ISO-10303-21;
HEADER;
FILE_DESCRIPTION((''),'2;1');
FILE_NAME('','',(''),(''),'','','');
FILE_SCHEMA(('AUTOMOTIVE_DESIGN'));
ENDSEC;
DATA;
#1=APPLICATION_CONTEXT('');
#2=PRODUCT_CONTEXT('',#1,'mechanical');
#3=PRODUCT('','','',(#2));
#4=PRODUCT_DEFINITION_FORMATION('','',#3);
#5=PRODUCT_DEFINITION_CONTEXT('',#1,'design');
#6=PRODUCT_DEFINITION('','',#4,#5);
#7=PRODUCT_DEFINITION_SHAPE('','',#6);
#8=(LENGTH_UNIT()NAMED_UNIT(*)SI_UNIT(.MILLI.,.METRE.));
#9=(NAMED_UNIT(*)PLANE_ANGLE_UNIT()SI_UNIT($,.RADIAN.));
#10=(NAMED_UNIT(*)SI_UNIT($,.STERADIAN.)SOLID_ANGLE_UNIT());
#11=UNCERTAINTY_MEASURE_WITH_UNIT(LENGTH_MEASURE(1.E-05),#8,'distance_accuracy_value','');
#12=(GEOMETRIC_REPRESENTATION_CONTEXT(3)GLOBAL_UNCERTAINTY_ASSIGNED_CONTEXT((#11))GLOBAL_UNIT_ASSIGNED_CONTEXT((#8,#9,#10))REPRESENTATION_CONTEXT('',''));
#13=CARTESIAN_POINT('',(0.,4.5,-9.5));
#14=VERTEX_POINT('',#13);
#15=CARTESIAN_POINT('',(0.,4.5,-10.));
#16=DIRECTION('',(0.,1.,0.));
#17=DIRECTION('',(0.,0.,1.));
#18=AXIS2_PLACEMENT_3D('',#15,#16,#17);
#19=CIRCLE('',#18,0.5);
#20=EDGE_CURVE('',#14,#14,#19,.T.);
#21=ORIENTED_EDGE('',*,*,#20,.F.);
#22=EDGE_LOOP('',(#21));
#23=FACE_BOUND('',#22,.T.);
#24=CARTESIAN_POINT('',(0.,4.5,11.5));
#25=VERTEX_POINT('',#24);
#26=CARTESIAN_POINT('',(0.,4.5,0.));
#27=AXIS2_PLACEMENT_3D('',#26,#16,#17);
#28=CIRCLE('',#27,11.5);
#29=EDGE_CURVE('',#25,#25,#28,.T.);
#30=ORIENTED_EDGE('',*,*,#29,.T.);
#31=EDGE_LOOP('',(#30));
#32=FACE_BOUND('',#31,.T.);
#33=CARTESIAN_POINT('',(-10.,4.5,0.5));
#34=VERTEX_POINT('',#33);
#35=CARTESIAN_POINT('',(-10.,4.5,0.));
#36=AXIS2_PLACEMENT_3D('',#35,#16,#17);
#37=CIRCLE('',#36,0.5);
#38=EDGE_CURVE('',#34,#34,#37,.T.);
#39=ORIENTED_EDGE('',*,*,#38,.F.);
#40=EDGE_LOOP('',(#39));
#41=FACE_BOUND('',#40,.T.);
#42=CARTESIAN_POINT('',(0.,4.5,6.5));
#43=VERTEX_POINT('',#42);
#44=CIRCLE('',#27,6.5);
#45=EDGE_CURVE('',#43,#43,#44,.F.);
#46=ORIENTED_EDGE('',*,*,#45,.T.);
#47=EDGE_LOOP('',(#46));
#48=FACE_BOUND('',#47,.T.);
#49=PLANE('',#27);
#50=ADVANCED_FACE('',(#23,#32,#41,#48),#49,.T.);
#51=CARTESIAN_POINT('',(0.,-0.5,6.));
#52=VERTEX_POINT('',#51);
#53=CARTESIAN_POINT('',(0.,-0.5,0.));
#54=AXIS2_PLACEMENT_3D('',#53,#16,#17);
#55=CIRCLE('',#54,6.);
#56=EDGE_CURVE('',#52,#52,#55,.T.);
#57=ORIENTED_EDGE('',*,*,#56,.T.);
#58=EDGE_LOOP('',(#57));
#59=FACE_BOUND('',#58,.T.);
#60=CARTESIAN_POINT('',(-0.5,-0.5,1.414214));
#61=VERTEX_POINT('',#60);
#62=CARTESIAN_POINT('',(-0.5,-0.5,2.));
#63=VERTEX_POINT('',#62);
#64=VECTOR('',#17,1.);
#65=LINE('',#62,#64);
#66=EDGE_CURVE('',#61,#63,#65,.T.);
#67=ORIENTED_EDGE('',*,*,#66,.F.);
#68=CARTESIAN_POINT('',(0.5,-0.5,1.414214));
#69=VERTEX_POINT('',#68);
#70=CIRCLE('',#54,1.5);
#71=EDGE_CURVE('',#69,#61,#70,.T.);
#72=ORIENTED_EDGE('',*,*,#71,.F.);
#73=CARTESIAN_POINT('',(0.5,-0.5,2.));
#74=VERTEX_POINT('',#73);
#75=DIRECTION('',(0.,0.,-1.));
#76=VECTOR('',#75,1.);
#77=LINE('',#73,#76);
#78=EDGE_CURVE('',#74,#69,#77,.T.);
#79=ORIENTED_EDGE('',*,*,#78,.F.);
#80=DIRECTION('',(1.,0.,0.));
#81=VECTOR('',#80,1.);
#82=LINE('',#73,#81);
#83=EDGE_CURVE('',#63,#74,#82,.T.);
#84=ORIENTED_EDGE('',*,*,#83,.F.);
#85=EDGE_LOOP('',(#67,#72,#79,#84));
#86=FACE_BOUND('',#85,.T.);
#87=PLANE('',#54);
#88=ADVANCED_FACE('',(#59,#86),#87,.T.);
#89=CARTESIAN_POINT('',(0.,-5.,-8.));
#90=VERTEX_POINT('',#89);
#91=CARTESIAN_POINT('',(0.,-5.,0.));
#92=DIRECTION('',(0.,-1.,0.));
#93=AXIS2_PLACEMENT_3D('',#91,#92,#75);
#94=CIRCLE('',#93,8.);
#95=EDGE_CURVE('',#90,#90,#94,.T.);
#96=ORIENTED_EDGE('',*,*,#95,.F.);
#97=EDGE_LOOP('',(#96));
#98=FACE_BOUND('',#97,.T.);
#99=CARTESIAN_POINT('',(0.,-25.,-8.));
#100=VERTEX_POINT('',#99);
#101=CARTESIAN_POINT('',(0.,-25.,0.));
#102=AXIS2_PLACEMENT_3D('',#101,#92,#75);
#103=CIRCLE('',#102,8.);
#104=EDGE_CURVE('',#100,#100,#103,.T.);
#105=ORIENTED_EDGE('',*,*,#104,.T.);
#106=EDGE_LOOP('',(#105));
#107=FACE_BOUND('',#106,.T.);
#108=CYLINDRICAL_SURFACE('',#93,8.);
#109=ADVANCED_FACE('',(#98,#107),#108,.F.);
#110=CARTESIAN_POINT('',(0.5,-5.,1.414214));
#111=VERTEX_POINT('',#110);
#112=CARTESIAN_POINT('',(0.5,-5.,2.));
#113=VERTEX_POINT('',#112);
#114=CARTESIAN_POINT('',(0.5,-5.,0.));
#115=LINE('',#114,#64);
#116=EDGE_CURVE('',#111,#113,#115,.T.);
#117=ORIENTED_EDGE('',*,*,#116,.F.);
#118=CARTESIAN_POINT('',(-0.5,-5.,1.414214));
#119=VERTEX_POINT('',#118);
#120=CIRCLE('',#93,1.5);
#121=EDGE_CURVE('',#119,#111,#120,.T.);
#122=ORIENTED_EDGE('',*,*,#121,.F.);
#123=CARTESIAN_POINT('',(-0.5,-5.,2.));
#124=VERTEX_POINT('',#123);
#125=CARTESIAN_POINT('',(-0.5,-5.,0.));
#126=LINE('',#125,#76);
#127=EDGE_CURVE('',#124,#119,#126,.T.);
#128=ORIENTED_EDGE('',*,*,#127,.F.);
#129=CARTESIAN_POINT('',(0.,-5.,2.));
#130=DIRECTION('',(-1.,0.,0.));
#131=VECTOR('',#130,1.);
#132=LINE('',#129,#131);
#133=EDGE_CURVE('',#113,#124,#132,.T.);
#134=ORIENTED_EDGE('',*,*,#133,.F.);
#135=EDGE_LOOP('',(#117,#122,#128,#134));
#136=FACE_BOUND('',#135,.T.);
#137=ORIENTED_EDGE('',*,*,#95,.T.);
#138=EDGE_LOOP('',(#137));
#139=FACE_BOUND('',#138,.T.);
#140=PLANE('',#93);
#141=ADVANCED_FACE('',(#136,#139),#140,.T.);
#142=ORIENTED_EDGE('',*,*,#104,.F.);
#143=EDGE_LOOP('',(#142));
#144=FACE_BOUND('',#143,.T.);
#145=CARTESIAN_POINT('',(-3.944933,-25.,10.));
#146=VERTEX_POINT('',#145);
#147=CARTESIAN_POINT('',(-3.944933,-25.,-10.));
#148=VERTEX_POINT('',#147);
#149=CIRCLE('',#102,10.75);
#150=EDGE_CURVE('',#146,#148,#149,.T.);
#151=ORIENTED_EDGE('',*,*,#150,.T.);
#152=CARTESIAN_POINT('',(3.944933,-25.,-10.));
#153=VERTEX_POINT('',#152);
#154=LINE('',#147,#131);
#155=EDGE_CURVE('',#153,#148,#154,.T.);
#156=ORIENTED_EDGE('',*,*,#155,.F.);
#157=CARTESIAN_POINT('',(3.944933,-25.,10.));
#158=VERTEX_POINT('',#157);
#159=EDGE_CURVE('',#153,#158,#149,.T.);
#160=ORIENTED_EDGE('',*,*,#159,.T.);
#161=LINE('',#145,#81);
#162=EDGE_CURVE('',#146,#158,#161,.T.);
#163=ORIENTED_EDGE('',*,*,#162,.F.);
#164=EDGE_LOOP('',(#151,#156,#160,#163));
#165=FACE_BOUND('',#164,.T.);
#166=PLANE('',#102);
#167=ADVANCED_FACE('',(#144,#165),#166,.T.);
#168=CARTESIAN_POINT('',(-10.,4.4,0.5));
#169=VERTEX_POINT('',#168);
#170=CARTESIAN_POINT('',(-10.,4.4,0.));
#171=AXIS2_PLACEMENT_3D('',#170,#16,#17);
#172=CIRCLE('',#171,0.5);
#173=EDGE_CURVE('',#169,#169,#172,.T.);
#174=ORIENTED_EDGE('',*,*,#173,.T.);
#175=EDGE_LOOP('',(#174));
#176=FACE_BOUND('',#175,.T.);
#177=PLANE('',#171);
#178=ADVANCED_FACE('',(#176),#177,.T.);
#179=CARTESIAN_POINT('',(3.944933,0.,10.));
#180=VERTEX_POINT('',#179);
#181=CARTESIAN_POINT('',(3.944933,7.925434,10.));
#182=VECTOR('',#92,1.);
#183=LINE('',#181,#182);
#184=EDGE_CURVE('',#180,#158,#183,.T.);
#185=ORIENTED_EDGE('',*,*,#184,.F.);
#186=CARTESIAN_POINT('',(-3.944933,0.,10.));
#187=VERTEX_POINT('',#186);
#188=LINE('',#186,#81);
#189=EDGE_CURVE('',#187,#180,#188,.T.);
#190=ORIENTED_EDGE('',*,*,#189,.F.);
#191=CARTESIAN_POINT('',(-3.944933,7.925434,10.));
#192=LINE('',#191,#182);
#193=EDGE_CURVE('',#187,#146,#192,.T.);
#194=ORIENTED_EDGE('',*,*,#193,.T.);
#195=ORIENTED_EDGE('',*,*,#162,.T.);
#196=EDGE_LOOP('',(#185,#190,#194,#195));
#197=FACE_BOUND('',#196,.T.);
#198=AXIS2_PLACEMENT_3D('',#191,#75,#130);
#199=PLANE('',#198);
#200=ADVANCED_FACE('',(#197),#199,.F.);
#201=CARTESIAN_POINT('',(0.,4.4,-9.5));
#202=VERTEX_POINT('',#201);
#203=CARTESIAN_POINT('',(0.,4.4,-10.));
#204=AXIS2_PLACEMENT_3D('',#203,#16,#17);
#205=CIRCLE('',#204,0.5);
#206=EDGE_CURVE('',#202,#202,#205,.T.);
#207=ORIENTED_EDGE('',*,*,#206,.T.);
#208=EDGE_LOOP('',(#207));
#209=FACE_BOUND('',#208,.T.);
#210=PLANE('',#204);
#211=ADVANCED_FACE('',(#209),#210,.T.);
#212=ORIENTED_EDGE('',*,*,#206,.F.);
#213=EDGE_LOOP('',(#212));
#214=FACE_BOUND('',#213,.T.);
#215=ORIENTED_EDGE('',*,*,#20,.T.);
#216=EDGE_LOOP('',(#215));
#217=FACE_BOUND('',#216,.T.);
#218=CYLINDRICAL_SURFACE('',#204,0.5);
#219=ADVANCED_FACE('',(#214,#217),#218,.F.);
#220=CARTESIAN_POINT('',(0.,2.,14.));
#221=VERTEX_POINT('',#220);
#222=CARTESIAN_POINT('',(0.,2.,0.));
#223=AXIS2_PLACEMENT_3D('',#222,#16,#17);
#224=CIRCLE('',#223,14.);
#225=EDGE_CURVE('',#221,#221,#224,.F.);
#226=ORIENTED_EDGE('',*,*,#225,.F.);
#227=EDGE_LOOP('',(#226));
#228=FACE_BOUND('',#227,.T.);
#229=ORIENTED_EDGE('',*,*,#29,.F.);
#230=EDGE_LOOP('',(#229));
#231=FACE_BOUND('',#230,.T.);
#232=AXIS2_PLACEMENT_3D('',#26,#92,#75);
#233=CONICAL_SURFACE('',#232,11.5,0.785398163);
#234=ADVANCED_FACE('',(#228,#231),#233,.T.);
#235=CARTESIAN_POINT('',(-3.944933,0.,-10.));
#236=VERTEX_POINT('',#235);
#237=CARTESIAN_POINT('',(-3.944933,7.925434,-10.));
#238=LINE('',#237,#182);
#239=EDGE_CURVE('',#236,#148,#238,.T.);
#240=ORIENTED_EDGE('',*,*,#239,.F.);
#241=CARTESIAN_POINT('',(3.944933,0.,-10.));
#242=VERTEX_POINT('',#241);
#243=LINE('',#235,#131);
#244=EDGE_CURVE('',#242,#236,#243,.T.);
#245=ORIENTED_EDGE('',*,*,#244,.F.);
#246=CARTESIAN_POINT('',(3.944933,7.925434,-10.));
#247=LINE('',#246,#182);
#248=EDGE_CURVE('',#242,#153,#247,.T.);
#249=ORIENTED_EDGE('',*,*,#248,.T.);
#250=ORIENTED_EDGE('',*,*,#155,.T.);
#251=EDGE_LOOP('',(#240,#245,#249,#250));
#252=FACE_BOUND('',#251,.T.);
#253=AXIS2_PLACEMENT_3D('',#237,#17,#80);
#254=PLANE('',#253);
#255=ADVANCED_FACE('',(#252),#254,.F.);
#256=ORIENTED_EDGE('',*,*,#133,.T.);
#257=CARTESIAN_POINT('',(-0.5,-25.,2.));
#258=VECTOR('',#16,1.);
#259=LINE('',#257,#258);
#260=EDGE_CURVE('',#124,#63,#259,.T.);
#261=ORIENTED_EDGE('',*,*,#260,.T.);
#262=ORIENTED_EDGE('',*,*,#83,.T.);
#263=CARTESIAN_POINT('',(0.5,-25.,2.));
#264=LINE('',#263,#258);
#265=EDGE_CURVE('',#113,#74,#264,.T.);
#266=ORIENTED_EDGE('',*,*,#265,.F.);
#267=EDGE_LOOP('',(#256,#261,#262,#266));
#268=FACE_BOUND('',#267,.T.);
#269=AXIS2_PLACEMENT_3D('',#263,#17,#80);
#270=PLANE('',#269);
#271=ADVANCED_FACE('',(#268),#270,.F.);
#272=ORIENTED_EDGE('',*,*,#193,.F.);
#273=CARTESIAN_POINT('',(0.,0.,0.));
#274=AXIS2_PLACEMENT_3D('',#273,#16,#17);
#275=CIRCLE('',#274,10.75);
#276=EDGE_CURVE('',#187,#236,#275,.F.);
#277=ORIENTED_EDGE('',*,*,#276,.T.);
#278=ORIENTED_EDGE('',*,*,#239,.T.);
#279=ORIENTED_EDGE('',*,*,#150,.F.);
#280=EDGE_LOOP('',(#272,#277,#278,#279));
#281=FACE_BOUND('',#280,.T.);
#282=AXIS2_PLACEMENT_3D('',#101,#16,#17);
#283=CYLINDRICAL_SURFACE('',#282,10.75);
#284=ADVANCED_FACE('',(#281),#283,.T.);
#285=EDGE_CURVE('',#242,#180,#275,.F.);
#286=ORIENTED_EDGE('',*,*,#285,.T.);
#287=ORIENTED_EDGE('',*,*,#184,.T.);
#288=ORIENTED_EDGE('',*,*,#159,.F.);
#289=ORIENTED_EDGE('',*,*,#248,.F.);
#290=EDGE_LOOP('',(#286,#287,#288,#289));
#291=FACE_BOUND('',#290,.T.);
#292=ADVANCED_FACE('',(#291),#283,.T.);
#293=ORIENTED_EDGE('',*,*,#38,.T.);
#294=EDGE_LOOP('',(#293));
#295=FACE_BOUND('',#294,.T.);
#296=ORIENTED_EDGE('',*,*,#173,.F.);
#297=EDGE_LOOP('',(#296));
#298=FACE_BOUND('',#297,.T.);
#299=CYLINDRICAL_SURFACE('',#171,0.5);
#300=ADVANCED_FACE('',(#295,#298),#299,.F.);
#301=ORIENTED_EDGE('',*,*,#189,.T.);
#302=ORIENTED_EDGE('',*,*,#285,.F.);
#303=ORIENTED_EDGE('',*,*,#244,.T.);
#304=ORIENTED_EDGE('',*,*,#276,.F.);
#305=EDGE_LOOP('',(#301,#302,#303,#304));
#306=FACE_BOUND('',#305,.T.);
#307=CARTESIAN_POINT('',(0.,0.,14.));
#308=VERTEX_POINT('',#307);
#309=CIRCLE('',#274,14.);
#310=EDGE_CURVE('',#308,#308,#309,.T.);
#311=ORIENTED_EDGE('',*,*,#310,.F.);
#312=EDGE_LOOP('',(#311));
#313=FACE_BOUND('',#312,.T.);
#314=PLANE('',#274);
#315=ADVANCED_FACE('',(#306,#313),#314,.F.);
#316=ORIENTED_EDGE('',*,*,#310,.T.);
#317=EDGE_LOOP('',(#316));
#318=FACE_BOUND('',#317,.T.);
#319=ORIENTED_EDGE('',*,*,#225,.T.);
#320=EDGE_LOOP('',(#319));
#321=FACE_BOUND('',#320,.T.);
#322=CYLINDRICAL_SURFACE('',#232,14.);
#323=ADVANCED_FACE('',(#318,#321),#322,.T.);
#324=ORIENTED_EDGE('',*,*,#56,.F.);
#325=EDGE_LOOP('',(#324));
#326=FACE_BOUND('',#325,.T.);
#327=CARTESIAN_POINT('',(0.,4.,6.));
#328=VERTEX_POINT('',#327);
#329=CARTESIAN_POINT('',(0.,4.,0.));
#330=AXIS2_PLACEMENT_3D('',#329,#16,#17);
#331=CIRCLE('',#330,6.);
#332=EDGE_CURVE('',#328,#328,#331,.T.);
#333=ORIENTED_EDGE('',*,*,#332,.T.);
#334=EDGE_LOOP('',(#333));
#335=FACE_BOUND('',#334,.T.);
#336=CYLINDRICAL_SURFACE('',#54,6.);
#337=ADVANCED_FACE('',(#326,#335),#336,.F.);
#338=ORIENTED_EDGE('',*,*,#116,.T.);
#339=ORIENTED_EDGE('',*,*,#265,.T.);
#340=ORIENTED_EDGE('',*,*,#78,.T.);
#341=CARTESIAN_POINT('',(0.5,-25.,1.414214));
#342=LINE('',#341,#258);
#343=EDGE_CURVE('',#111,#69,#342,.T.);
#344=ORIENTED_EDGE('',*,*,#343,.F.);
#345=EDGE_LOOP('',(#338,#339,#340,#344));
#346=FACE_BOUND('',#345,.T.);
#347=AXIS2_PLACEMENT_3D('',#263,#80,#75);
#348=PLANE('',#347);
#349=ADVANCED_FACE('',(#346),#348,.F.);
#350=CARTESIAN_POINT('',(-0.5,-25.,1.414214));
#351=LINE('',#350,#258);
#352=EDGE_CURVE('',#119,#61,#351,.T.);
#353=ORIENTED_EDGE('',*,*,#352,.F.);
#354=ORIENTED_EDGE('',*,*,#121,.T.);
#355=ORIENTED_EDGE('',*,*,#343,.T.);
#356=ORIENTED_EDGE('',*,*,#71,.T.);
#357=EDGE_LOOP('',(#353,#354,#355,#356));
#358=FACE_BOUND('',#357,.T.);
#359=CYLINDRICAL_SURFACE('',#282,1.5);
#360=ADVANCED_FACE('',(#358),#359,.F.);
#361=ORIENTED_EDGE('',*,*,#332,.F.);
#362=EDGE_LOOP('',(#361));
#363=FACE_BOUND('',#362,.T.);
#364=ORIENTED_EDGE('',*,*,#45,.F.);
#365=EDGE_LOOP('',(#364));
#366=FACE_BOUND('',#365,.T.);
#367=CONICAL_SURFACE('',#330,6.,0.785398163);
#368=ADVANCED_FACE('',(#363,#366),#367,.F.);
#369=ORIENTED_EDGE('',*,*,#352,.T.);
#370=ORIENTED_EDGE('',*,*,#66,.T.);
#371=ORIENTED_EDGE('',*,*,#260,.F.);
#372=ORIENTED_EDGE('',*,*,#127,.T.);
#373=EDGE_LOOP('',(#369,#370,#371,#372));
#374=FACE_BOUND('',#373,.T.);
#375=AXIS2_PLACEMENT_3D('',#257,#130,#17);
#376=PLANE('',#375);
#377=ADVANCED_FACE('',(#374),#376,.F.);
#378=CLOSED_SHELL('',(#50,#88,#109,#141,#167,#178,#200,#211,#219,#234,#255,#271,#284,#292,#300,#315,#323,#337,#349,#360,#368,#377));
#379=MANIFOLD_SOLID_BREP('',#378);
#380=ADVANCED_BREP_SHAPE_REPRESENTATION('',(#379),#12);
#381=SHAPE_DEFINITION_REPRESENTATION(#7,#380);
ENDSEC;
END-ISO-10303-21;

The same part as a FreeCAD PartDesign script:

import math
import FreeCAD as App
import Part
import Sketcher
from FreeCAD import Vector
Q = App.Units.Quantity


def edges_at(feature, points):
    """Names of the edges that pass closest to the given points."""
    edges = feature.Shape.Edges
    near = lambda p: min(range(len(edges)), key=lambda i: edges[i].distToShape(Part.Vertex(*p))[0])
    return sorted({f"Edge{near(p) + 1}" for p in points})

doc = App.newDocument("Part")
params = doc.addObject("Spreadsheet::Sheet", "Params")
for row, (alias, value) in enumerate([
    ("sketch1_diameter", "28 mm"),
    ("pad1_length", "4.5 mm"),
    ("sketch2_diameter", "1 mm"),
    ("pocket1_length", "0.1 mm"),
    ("chamfer_size", "2.5 mm"),
    ("sketch3_diameter", "21.5 mm"),
    ("pad2_length", "25 mm"),
    ("sketch4_radius", "10.75 mm"),
    ("pocket2_length", "25 mm"),
    ("sketch5_diameter", "12 mm"),
    ("pocket3_length", "5 mm"),
    ("chamfer2_size", "0.5 mm"),
    ("sketch6_diameter", "16 mm"),
    ("pocket4_length", "20 mm"),
    ("sketch7_radius", "1.5 mm"),
    ("sketch7_width", "1 mm"),
], start=1):
    params.set(f"A{row}", alias)
    params.set(f"B{row}", "=" + value)
    params.setAlias(f"B{row}", alias)

body = doc.addObject("PartDesign::Body", "Body")

# Sketch on XZ plane
sketch1 = body.newObject("Sketcher::SketchObject", "Sketch")
sketch1.AttachmentSupport = (doc.getObject("XZ_Plane"), [""])
sketch1.MapMode = "FlatFace"
sketch1.addGeometry(Part.Circle(Vector(0, 0, 0), Vector(0, 0, 1), 14), False)
sketch1.addConstraint(Sketcher.Constraint("Coincident", 0, 3, -1, 1))
sketch1.addConstraint(Sketcher.Constraint("Diameter", 0, Q("28 mm")))
sketch1.setExpression("Constraints[1]", "Params.sketch1_diameter")
pad1 = body.newObject("PartDesign::Pad", "Pad")
pad1.Profile = sketch1
pad1.setExpression("Length", "Params.pad1_length")
pad1.Reversed = True

# Sketch on XZ plane
sketch2 = body.newObject("Sketcher::SketchObject", "Sketch001")
sketch2.AttachmentSupport = (doc.getObject("XZ_Plane"), [""])
sketch2.MapMode = "FlatFace"
sketch2.AttachmentOffset = App.Placement(Vector(0, 0, -4.5), App.Rotation())
sketch2.addGeometry(Part.Circle(Vector(-10, 0, 0), Vector(0, 0, 1), 0.5), False)
sketch2.addGeometry(Part.Circle(Vector(0, -10, 0), Vector(0, 0, 1), 0.5), False)
sketch2.addConstraint(Sketcher.Constraint("Equal", 0, 1))
sketch2.addConstraint(Sketcher.Constraint("PointOnObject", 0, 3, -1))
sketch2.addConstraint(Sketcher.Constraint("PointOnObject", 1, 3, -2))
sketch2.addConstraint(Sketcher.Constraint("Diameter", 0, Q("1 mm")))
sketch2.addConstraint(Sketcher.Constraint("DistanceX", 0, 3, -1, 1, Q("10 mm")))
sketch2.addConstraint(Sketcher.Constraint("DistanceY", 1, 3, -1, 1, Q("10 mm")))
sketch2.setExpression("Constraints[3]", "Params.sketch2_diameter")
pocket1 = body.newObject("PartDesign::Pocket", "Pocket")
pocket1.Profile = sketch2
pocket1.setExpression("Length", "Params.pocket1_length")
pocket1.Reversed = True
doc.recompute()

chamfer = body.newObject("PartDesign::Chamfer", "Chamfer")
chamfer.Base = (pocket1, edges_at(pocket1, [(0, 4.5, -14)]))
chamfer.setExpression("Size", "Params.chamfer_size")

# Sketch on XZ plane
sketch3 = body.newObject("Sketcher::SketchObject", "Sketch002")
sketch3.AttachmentSupport = (doc.getObject("XZ_Plane"), [""])
sketch3.MapMode = "FlatFace"
sketch3.addGeometry(Part.Circle(Vector(0, 0, 0), Vector(0, 0, 1), 11), False)
sketch3.addConstraint(Sketcher.Constraint("Coincident", 0, 3, -1, 1))
sketch3.addConstraint(Sketcher.Constraint("Diameter", 0, Q("21.5 mm")))
sketch3.setExpression("Constraints[1]", "Params.sketch3_diameter")
pad2 = body.newObject("PartDesign::Pad", "Pad001")
pad2.Profile = sketch3
pad2.setExpression("Length", "Params.pad2_length")

# Sketch on XZ plane
sketch4 = body.newObject("Sketcher::SketchObject", "Sketch003")
sketch4.AttachmentSupport = (doc.getObject("XZ_Plane"), [""])
sketch4.MapMode = "FlatFace"
sketch4.addGeometry(Part.LineSegment(Vector(4, -10, 0), Vector(-4, -10, 0)), False)
sketch4.addGeometry(Part.ArcOfCircle(Part.Circle(Vector(0, 0, 0), Vector(0, 0, 1), 11), math.radians(-112), math.radians(-68)), False)
sketch4.addGeometry(Part.LineSegment(Vector(-4, 10, 0), Vector(4, 10, 0)), False)
sketch4.addGeometry(Part.ArcOfCircle(Part.Circle(Vector(0, 0, 0), Vector(0, 0, 1), 11), math.radians(68), math.radians(112)), False)
sketch4.addConstraint(Sketcher.Constraint("Coincident", 0, 1, 1, 2))
sketch4.addConstraint(Sketcher.Constraint("Coincident", 1, 1, 0, 2))
sketch4.addConstraint(Sketcher.Constraint("Coincident", 2, 1, 3, 2))
sketch4.addConstraint(Sketcher.Constraint("Coincident", 3, 1, 2, 2))
sketch4.addConstraint(Sketcher.Constraint("Horizontal", 0))
sketch4.addConstraint(Sketcher.Constraint("Horizontal", 2))
sketch4.addConstraint(Sketcher.Constraint("Coincident", 1, 3, -1, 1))
sketch4.addConstraint(Sketcher.Constraint("Coincident", 3, 3, -1, 1))
sketch4.addConstraint(Sketcher.Constraint("Equal", 1, 3))
sketch4.addConstraint(Sketcher.Constraint("Vertical", 1, 1, 2, 1))
sketch4.addConstraint(Sketcher.Constraint("Radius", 1, Q("10.75 mm")))
sketch4.addConstraint(Sketcher.Constraint("DistanceY", 0, 1, -1, 1, Q("10 mm")))
sketch4.setExpression("Constraints[10]", "Params.sketch4_radius")
pocket2 = body.newObject("PartDesign::Pocket", "Pocket001")
pocket2.Profile = sketch4
pocket2.setExpression("Length", "Params.pocket2_length")
pocket2.Reversed = True

# Sketch on XZ plane
sketch5 = body.newObject("Sketcher::SketchObject", "Sketch004")
sketch5.AttachmentSupport = (doc.getObject("XZ_Plane"), [""])
sketch5.MapMode = "FlatFace"
sketch5.AttachmentOffset = App.Placement(Vector(0, 0, -4.5), App.Rotation())
sketch5.addGeometry(Part.Circle(Vector(0, 0, 0), Vector(0, 0, 1), 6), False)
sketch5.addConstraint(Sketcher.Constraint("Coincident", 0, 3, -1, 1))
sketch5.addConstraint(Sketcher.Constraint("Diameter", 0, Q("12 mm")))
sketch5.setExpression("Constraints[1]", "Params.sketch5_diameter")
pocket3 = body.newObject("PartDesign::Pocket", "Pocket002")
pocket3.Profile = sketch5
pocket3.setExpression("Length", "Params.pocket3_length")
pocket3.Reversed = True
doc.recompute()

chamfer2 = body.newObject("PartDesign::Chamfer", "Chamfer001")
chamfer2.Base = (pocket3, edges_at(pocket3, [(0, 4.5, -6)]))
chamfer2.setExpression("Size", "Params.chamfer2_size")

# Sketch on XZ plane
sketch6 = body.newObject("Sketcher::SketchObject", "Sketch005")
sketch6.AttachmentSupport = (doc.getObject("XZ_Plane"), [""])
sketch6.MapMode = "FlatFace"
sketch6.AttachmentOffset = App.Placement(Vector(0, 0, 25), App.Rotation())
sketch6.addGeometry(Part.Circle(Vector(0, 0, 0), Vector(0, 0, 1), 8), False)
sketch6.addConstraint(Sketcher.Constraint("Coincident", 0, 3, -1, 1))
sketch6.addConstraint(Sketcher.Constraint("Diameter", 0, Q("16 mm")))
sketch6.setExpression("Constraints[1]", "Params.sketch6_diameter")
pocket4 = body.newObject("PartDesign::Pocket", "Pocket003")
pocket4.Profile = sketch6
pocket4.setExpression("Length", "Params.pocket4_length")

# Sketch on XZ plane
sketch7 = body.newObject("Sketcher::SketchObject", "Sketch006")
sketch7.AttachmentSupport = (doc.getObject("XZ_Plane"), [""])
sketch7.MapMode = "FlatFace"
sketch7.AttachmentOffset = App.Placement(Vector(0, 0, 0.5), App.Rotation())
sketch7.addGeometry(Part.LineSegment(Vector(0.5, 2, 0), Vector(0.5, 1.4, 0)), False)
sketch7.addGeometry(Part.ArcOfCircle(Part.Circle(Vector(0, 0, 0), Vector(0, 0, 1), 1.5), math.radians(109), math.radians(431)), False)
sketch7.addGeometry(Part.LineSegment(Vector(-0.5, 1.4, 0), Vector(-0.5, 2, 0)), False)
sketch7.addGeometry(Part.LineSegment(Vector(-0.5, 2, 0), Vector(0.5, 2, 0)), False)
sketch7.addConstraint(Sketcher.Constraint("Coincident", 0, 2, 1, 2))
sketch7.addConstraint(Sketcher.Constraint("Coincident", 1, 1, 2, 1))
sketch7.addConstraint(Sketcher.Constraint("Coincident", 2, 2, 3, 1))
sketch7.addConstraint(Sketcher.Constraint("Coincident", 3, 2, 0, 1))
sketch7.addConstraint(Sketcher.Constraint("Vertical", 0))
sketch7.addConstraint(Sketcher.Constraint("Vertical", 2))
sketch7.addConstraint(Sketcher.Constraint("Horizontal", 3))
sketch7.addConstraint(Sketcher.Constraint("Coincident", 1, 3, -1, 1))
sketch7.addConstraint(Sketcher.Constraint("Horizontal", 0, 2, 1, 1))
sketch7.addConstraint(Sketcher.Constraint("Radius", 1, Q("1.5 mm")))
sketch7.addConstraint(Sketcher.Constraint("DistanceX", 3, 1, 3, 2, Q("1 mm")))
sketch7.addConstraint(Sketcher.Constraint("DistanceY", -1, 1, 2, 2, Q("2 mm")))
sketch7.setExpression("Constraints[9]", "Params.sketch7_radius")
sketch7.setExpression("Constraints[10]", "Params.sketch7_width")
pocket5 = body.newObject("PartDesign::Pocket", "Pocket004")
pocket5.Profile = sketch7
pocket5.Type = "ThroughAll"
pocket5.Reversed = True

doc.recompute()
